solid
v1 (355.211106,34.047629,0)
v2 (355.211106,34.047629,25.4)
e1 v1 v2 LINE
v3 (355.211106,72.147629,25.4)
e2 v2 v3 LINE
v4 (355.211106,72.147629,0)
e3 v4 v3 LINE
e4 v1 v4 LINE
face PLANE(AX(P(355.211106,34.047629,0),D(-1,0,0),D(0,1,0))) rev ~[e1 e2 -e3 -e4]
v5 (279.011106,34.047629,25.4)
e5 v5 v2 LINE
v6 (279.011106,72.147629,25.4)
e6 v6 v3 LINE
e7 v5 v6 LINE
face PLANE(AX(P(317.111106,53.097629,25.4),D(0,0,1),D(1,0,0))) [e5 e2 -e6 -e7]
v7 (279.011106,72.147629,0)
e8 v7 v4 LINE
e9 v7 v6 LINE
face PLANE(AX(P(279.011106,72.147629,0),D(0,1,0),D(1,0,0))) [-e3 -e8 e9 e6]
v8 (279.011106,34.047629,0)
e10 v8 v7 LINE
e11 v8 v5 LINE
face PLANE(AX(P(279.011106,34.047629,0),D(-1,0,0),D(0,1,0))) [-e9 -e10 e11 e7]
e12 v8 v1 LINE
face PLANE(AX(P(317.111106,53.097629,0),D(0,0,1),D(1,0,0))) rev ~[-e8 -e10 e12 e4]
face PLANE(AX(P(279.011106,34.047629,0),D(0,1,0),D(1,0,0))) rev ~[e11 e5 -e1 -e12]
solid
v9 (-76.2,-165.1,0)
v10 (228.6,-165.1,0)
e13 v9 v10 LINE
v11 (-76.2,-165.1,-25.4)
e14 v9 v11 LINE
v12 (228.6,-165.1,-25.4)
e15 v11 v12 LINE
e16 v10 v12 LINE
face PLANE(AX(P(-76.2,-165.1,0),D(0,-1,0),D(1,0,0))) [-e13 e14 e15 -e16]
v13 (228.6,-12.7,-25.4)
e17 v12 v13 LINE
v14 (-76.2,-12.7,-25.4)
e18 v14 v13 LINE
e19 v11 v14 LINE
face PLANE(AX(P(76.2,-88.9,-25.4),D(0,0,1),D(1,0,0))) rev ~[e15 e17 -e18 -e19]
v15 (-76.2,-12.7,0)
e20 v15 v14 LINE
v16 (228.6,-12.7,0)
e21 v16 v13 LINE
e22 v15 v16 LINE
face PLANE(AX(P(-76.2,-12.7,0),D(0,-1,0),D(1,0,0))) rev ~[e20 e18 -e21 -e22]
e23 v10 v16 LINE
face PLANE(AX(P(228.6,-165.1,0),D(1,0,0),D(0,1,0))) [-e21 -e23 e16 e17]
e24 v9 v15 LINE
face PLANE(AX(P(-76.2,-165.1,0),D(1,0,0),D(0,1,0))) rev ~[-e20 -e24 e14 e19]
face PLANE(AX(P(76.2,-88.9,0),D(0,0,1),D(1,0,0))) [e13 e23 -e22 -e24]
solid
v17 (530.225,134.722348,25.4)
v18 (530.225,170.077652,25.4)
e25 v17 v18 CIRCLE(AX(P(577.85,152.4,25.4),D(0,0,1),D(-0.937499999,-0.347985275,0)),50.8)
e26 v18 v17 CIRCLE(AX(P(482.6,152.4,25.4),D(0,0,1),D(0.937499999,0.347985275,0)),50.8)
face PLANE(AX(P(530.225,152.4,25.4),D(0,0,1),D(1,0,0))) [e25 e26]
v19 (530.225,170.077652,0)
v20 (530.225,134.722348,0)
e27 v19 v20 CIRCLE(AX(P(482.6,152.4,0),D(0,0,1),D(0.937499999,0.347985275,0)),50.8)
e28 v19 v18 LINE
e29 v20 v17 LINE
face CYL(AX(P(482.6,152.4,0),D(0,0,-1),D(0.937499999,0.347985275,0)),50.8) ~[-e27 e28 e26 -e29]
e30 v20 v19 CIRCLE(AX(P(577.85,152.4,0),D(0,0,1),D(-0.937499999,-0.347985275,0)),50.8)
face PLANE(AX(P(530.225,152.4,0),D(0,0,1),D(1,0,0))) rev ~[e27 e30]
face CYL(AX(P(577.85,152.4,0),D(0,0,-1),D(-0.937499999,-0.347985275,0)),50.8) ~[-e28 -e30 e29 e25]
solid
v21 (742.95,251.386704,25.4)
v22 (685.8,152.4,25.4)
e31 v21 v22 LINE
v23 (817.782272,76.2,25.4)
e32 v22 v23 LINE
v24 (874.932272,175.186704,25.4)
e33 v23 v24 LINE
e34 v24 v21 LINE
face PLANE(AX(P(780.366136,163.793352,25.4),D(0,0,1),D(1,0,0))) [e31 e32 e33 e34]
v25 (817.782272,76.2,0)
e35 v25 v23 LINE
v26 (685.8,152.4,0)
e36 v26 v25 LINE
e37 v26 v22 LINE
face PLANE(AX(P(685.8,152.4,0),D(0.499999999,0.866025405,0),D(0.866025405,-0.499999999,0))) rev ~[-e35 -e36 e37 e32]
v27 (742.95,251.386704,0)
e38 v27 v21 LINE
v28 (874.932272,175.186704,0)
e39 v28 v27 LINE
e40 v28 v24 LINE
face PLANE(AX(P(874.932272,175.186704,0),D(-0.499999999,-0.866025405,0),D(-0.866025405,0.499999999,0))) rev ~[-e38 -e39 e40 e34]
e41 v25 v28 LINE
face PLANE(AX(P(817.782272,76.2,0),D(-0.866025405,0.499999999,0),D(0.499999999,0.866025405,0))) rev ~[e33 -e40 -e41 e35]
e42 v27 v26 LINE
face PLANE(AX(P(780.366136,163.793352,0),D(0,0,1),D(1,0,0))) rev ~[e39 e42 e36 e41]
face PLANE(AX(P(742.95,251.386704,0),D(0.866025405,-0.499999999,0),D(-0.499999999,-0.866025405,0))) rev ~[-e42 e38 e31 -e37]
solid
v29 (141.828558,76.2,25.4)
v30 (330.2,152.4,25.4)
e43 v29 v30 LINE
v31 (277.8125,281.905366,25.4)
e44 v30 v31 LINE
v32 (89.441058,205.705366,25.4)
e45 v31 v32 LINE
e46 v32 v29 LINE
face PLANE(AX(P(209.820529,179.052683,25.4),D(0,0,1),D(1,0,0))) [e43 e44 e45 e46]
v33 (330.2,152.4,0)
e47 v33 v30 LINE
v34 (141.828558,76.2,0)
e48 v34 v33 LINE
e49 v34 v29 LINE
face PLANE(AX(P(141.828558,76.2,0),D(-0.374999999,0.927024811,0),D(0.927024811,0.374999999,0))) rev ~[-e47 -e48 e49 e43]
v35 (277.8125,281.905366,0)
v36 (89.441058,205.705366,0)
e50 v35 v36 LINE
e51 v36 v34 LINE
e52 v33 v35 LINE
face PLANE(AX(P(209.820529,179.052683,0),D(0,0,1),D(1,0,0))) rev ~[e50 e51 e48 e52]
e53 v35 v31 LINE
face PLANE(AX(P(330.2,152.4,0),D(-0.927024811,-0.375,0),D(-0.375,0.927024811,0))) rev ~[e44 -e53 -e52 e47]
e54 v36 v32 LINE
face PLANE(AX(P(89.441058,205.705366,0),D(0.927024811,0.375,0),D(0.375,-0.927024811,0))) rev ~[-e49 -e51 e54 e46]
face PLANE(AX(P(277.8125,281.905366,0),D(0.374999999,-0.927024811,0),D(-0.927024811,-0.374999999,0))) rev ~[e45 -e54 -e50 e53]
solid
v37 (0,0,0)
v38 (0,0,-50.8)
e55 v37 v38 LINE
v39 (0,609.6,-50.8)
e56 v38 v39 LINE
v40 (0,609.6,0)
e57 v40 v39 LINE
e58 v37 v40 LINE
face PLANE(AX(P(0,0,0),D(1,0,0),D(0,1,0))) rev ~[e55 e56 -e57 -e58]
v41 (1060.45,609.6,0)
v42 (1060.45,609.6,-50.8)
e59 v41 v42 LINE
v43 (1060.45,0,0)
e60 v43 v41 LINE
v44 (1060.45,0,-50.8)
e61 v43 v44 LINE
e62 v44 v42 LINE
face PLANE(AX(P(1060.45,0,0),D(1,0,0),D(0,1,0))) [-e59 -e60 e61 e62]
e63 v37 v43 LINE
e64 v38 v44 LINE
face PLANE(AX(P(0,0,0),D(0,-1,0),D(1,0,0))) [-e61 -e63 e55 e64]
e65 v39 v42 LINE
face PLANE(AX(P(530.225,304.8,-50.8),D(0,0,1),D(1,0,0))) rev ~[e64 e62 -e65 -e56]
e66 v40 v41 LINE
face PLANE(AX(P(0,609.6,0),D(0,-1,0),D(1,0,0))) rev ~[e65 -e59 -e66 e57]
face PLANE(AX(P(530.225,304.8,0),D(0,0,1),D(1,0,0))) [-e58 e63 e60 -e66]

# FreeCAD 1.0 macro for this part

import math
import FreeCAD as App
import Part
import Sketcher
Q = App.Units.Quantity

doc = App.newDocument("Part")
params = doc.addObject("Spreadsheet::Sheet", "Params")
for row, (alias, value) in enumerate([
    ("sketch1_radius", "2 in"),
    ("sketch1_width", "3 in"),
    ("sketch1_length", "8 in"),
    ("sketch1_length2", "6 in"),
    ("sketch1_height", "1.5 in"),
    ("pad1_length", "1 in"),
    ("sketch2_height", "24 in"),
    ("sketch2_width", "41.75 in"),
    ("pad2_length", "2 in"),
    ("sketch3_width", "12 in"),
    ("sketch3_height", "6 in"),
    ("pad3_length", "1 in"),
], start=1):
    params.set(f"A{row}", alias)
    params.set(f"B{row}", "=" + value)
    params.setAlias(f"B{row}", alias)

body = doc.addObject("PartDesign::Body", "Body")
body.AllowCompound = True

sketch1 = body.newObject("Sketcher::SketchObject", "Sketch")
sketch1.AttachmentSupport = (doc.getObject("XY_Plane"), [""])
sketch1.MapMode = "FlatFace"
sketch1.addGeometry([
    Part.ArcOfCircle(Part.Circle(App.Vector(483, 152, 0), App.Vector(0, 0, 1), 51), math.radians(20), math.radians(340)),
    Part.ArcOfCircle(Part.Circle(App.Vector(578, 152, 0), App.Vector(0, 0, 1), 51), math.radians(-160), math.radians(160)),
    Part.LineSegment(App.Vector(330, 152, 0), App.Vector(278, 282, 0)),
    Part.LineSegment(App.Vector(278, 282, 0), App.Vector(89, 206, 0)),
    Part.LineSegment(App.Vector(89, 206, 0), App.Vector(142, 76, 0)),
    Part.LineSegment(App.Vector(142, 76, 0), App.Vector(330, 152, 0)),
    Part.LineSegment(App.Vector(279, 72, 0), App.Vector(279, 34, 0)),
    Part.LineSegment(App.Vector(279, 34, 0), App.Vector(355, 34, 0)),
    Part.LineSegment(App.Vector(355, 34, 0), App.Vector(355, 72, 0)),
    Part.LineSegment(App.Vector(355, 72, 0), App.Vector(279, 72, 0)),
    Part.LineSegment(App.Vector(818, 76, 0), App.Vector(875, 175, 0)),
    Part.LineSegment(App.Vector(875, 175, 0), App.Vector(743, 251, 0)),
    Part.LineSegment(App.Vector(743, 251, 0), App.Vector(686, 152, 0)),
    Part.LineSegment(App.Vector(686, 152, 0), App.Vector(818, 76, 0)),
], False)
sketch1.addConstraint([
    Sketcher.Constraint("Coincident", 0, 1, 1, 2),
    Sketcher.Constraint("Coincident", 1, 1, 0, 2),
    Sketcher.Constraint("Coincident", 2, 2, 3, 1),
    Sketcher.Constraint("Coincident", 3, 2, 4, 1),
    Sketcher.Constraint("Coincident", 4, 2, 5, 1),
    Sketcher.Constraint("Coincident", 5, 2, 2, 1),
    Sketcher.Constraint("Coincident", 6, 2, 7, 1),
    Sketcher.Constraint("Coincident", 7, 2, 8, 1),
    Sketcher.Constraint("Coincident", 8, 2, 9, 1),
    Sketcher.Constraint("Coincident", 9, 2, 6, 1),
    Sketcher.Constraint("Coincident", 10, 2, 11, 1),
    Sketcher.Constraint("Coincident", 11, 2, 12, 1),
    Sketcher.Constraint("Coincident", 12, 2, 13, 1),
    Sketcher.Constraint("Coincident", 13, 2, 10, 1),
    Sketcher.Constraint("Vertical", 6),
    Sketcher.Constraint("Horizontal", 7),
    Sketcher.Constraint("Vertical", 8),
    Sketcher.Constraint("Horizontal", 9),
    Sketcher.Constraint("Equal", 0, 1),
    Sketcher.Constraint("Perpendicular", 2, 3),
    Sketcher.Constraint("Perpendicular", 3, 4),
    Sketcher.Constraint("Perpendicular", 4, 5),
    Sketcher.Constraint("Perpendicular", 10, 11),
    Sketcher.Constraint("Perpendicular", 11, 12),
    Sketcher.Constraint("Perpendicular", 12, 13),
    Sketcher.Constraint("Horizontal", 0, 3, 1, 3),
    Sketcher.Constraint("Horizontal", 1, 3, 5, 2),
    Sketcher.Constraint("Horizontal", 5, 2, 12, 2),
    Sketcher.Constraint("Horizontal", 4, 2, 13, 2),
    Sketcher.Constraint("Radius", 0, Q("2 in")),
    Sketcher.Constraint("DistanceX", 7, 1, 7, 2, Q("3 in")),
    Sketcher.Constraint("Distance", 3, Q("8 in")),
    Sketcher.Constraint("Distance", 11, Q("6 in")),
    Sketcher.Constraint("DistanceY", 6, 2, 6, 1, Q("1.5 in")),
    Sketcher.Constraint("DistanceX", -1, 1, 0, 3, Q("19 in")),
    Sketcher.Constraint("DistanceY", -1, 1, 0, 3, Q("6 in")),
    Sketcher.Constraint("DistanceY", -1, 1, 4, 2, Q("3 in")),
    Sketcher.Constraint("DistanceX", -1, 1, 5, 2, Q("13 in")),
    Sketcher.Constraint("DistanceX", -1, 1, 12, 2, Q("27 in")),
    Sketcher.Constraint("Distance", 2, Q("5.5 in")),
    Sketcher.Constraint("Distance", 10, Q("4.5 in")),
    Sketcher.Constraint("DistanceX", 1, 3, 11, 2, Q("6.5 in")),
    Sketcher.Constraint("DistanceY", -1, 1, 6, 2, 34.047629),
    Sketcher.Constraint("DistanceX", 4, 2, 6, 2, 137.182548),
])
sketch1.setExpression("Constraints[29]", "Params.sketch1_radius")
sketch1.setExpression("Constraints[30]", "Params.sketch1_width")
sketch1.setExpression("Constraints[31]", "Params.sketch1_length")
sketch1.setExpression("Constraints[32]", "Params.sketch1_length2")
sketch1.setExpression("Constraints[33]", "Params.sketch1_height")
pad1 = body.newObject("PartDesign::Pad", "Pad")
pad1.Profile = sketch1
pad1.setExpression("Length", "Params.pad1_length")
body2 = doc.addObject("PartDesign::Body", "Body001")

sketch2 = body2.newObject("Sketcher::SketchObject", "Sketch001")
sketch2.AttachmentSupport = (doc.getObject("XY_Plane001"), [""])
sketch2.MapMode = "FlatFace"
sketch2.addGeometry([
    Part.LineSegment(App.Vector(0, 610, 0), App.Vector(0, 0, 0)),
    Part.LineSegment(App.Vector(0, 0, 0), App.Vector(1060, 0, 0)),
    Part.LineSegment(App.Vector(1060, 0, 0), App.Vector(1060, 610, 0)),
    Part.LineSegment(App.Vector(1060, 610, 0), App.Vector(0, 610, 0)),
], False)
sketch2.addConstraint([
    Sketcher.Constraint("Coincident", 0, 2, 1, 1),
    Sketcher.Constraint("Coincident", 1, 2, 2, 1),
    Sketcher.Constraint("Coincident", 2, 2, 3, 1),
    Sketcher.Constraint("Coincident", 3, 2, 0, 1),
    Sketcher.Constraint("Vertical", 0),
    Sketcher.Constraint("Horizontal", 1),
    Sketcher.Constraint("Vertical", 2),
    Sketcher.Constraint("Horizontal", 3),
    Sketcher.Constraint("Coincident", 0, 2, -1, 1),
    Sketcher.Constraint("DistanceY", 0, 2, 0, 1, Q("24 in")),
    Sketcher.Constraint("DistanceX", 1, 1, 1, 2, Q("41.75 in")),
])
sketch2.setExpression("Constraints[9]", "Params.sketch2_height")
sketch2.setExpression("Constraints[10]", "Params.sketch2_width")
pad2 = body2.newObject("PartDesign::Pad", "Pad001")
pad2.Profile = sketch2
pad2.setExpression("Length", "Params.pad2_length")
pad2.Reversed = True
body3 = doc.addObject("PartDesign::Body", "Body002")

sketch3 = body3.newObject("Sketcher::SketchObject", "Sketch002")
sketch3.AttachmentSupport = (doc.getObject("XY_Plane002"), [""])
sketch3.MapMode = "FlatFace"
sketch3.addGeometry([
    Part.LineSegment(App.Vector(-76, -13, 0), App.Vector(-76, -165, 0)),
    Part.LineSegment(App.Vector(-76, -165, 0), App.Vector(229, -165, 0)),
    Part.LineSegment(App.Vector(229, -165, 0), App.Vector(229, -13, 0)),
    Part.LineSegment(App.Vector(229, -13, 0), App.Vector(-76, -13, 0)),
], False)
sketch3.addConstraint([
    Sketcher.Constraint("Coincident", 0, 2, 1, 1),
    Sketcher.Constraint("Coincident", 1, 2, 2, 1),
    Sketcher.Constraint("Coincident", 2, 2, 3, 1),
    Sketcher.Constraint("Coincident", 3, 2, 0, 1),
    Sketcher.Constraint("Vertical", 0),
    Sketcher.Constraint("Horizontal", 1),
    Sketcher.Constraint("Vertical", 2),
    Sketcher.Constraint("Horizontal", 3),
    Sketcher.Constraint("DistanceX", 1, 1, 1, 2, Q("12 in")),
    Sketcher.Constraint("DistanceY", 0, 2, 0, 1, Q("6 in")),
    Sketcher.Constraint("DistanceX", 0, 2, -1, 1, Q("3 in")),
    Sketcher.Constraint("DistanceY", 0, 2, -1, 1, Q("6.5 in")),
])
sketch3.setExpression("Constraints[8]", "Params.sketch3_width")
sketch3.setExpression("Constraints[9]", "Params.sketch3_height")
pad3 = body3.newObject("PartDesign::Pad", "Pad002")
pad3.Profile = sketch3
pad3.setExpression("Length", "Params.pad3_length")
pad3.Reversed = True

doc.recompute()
